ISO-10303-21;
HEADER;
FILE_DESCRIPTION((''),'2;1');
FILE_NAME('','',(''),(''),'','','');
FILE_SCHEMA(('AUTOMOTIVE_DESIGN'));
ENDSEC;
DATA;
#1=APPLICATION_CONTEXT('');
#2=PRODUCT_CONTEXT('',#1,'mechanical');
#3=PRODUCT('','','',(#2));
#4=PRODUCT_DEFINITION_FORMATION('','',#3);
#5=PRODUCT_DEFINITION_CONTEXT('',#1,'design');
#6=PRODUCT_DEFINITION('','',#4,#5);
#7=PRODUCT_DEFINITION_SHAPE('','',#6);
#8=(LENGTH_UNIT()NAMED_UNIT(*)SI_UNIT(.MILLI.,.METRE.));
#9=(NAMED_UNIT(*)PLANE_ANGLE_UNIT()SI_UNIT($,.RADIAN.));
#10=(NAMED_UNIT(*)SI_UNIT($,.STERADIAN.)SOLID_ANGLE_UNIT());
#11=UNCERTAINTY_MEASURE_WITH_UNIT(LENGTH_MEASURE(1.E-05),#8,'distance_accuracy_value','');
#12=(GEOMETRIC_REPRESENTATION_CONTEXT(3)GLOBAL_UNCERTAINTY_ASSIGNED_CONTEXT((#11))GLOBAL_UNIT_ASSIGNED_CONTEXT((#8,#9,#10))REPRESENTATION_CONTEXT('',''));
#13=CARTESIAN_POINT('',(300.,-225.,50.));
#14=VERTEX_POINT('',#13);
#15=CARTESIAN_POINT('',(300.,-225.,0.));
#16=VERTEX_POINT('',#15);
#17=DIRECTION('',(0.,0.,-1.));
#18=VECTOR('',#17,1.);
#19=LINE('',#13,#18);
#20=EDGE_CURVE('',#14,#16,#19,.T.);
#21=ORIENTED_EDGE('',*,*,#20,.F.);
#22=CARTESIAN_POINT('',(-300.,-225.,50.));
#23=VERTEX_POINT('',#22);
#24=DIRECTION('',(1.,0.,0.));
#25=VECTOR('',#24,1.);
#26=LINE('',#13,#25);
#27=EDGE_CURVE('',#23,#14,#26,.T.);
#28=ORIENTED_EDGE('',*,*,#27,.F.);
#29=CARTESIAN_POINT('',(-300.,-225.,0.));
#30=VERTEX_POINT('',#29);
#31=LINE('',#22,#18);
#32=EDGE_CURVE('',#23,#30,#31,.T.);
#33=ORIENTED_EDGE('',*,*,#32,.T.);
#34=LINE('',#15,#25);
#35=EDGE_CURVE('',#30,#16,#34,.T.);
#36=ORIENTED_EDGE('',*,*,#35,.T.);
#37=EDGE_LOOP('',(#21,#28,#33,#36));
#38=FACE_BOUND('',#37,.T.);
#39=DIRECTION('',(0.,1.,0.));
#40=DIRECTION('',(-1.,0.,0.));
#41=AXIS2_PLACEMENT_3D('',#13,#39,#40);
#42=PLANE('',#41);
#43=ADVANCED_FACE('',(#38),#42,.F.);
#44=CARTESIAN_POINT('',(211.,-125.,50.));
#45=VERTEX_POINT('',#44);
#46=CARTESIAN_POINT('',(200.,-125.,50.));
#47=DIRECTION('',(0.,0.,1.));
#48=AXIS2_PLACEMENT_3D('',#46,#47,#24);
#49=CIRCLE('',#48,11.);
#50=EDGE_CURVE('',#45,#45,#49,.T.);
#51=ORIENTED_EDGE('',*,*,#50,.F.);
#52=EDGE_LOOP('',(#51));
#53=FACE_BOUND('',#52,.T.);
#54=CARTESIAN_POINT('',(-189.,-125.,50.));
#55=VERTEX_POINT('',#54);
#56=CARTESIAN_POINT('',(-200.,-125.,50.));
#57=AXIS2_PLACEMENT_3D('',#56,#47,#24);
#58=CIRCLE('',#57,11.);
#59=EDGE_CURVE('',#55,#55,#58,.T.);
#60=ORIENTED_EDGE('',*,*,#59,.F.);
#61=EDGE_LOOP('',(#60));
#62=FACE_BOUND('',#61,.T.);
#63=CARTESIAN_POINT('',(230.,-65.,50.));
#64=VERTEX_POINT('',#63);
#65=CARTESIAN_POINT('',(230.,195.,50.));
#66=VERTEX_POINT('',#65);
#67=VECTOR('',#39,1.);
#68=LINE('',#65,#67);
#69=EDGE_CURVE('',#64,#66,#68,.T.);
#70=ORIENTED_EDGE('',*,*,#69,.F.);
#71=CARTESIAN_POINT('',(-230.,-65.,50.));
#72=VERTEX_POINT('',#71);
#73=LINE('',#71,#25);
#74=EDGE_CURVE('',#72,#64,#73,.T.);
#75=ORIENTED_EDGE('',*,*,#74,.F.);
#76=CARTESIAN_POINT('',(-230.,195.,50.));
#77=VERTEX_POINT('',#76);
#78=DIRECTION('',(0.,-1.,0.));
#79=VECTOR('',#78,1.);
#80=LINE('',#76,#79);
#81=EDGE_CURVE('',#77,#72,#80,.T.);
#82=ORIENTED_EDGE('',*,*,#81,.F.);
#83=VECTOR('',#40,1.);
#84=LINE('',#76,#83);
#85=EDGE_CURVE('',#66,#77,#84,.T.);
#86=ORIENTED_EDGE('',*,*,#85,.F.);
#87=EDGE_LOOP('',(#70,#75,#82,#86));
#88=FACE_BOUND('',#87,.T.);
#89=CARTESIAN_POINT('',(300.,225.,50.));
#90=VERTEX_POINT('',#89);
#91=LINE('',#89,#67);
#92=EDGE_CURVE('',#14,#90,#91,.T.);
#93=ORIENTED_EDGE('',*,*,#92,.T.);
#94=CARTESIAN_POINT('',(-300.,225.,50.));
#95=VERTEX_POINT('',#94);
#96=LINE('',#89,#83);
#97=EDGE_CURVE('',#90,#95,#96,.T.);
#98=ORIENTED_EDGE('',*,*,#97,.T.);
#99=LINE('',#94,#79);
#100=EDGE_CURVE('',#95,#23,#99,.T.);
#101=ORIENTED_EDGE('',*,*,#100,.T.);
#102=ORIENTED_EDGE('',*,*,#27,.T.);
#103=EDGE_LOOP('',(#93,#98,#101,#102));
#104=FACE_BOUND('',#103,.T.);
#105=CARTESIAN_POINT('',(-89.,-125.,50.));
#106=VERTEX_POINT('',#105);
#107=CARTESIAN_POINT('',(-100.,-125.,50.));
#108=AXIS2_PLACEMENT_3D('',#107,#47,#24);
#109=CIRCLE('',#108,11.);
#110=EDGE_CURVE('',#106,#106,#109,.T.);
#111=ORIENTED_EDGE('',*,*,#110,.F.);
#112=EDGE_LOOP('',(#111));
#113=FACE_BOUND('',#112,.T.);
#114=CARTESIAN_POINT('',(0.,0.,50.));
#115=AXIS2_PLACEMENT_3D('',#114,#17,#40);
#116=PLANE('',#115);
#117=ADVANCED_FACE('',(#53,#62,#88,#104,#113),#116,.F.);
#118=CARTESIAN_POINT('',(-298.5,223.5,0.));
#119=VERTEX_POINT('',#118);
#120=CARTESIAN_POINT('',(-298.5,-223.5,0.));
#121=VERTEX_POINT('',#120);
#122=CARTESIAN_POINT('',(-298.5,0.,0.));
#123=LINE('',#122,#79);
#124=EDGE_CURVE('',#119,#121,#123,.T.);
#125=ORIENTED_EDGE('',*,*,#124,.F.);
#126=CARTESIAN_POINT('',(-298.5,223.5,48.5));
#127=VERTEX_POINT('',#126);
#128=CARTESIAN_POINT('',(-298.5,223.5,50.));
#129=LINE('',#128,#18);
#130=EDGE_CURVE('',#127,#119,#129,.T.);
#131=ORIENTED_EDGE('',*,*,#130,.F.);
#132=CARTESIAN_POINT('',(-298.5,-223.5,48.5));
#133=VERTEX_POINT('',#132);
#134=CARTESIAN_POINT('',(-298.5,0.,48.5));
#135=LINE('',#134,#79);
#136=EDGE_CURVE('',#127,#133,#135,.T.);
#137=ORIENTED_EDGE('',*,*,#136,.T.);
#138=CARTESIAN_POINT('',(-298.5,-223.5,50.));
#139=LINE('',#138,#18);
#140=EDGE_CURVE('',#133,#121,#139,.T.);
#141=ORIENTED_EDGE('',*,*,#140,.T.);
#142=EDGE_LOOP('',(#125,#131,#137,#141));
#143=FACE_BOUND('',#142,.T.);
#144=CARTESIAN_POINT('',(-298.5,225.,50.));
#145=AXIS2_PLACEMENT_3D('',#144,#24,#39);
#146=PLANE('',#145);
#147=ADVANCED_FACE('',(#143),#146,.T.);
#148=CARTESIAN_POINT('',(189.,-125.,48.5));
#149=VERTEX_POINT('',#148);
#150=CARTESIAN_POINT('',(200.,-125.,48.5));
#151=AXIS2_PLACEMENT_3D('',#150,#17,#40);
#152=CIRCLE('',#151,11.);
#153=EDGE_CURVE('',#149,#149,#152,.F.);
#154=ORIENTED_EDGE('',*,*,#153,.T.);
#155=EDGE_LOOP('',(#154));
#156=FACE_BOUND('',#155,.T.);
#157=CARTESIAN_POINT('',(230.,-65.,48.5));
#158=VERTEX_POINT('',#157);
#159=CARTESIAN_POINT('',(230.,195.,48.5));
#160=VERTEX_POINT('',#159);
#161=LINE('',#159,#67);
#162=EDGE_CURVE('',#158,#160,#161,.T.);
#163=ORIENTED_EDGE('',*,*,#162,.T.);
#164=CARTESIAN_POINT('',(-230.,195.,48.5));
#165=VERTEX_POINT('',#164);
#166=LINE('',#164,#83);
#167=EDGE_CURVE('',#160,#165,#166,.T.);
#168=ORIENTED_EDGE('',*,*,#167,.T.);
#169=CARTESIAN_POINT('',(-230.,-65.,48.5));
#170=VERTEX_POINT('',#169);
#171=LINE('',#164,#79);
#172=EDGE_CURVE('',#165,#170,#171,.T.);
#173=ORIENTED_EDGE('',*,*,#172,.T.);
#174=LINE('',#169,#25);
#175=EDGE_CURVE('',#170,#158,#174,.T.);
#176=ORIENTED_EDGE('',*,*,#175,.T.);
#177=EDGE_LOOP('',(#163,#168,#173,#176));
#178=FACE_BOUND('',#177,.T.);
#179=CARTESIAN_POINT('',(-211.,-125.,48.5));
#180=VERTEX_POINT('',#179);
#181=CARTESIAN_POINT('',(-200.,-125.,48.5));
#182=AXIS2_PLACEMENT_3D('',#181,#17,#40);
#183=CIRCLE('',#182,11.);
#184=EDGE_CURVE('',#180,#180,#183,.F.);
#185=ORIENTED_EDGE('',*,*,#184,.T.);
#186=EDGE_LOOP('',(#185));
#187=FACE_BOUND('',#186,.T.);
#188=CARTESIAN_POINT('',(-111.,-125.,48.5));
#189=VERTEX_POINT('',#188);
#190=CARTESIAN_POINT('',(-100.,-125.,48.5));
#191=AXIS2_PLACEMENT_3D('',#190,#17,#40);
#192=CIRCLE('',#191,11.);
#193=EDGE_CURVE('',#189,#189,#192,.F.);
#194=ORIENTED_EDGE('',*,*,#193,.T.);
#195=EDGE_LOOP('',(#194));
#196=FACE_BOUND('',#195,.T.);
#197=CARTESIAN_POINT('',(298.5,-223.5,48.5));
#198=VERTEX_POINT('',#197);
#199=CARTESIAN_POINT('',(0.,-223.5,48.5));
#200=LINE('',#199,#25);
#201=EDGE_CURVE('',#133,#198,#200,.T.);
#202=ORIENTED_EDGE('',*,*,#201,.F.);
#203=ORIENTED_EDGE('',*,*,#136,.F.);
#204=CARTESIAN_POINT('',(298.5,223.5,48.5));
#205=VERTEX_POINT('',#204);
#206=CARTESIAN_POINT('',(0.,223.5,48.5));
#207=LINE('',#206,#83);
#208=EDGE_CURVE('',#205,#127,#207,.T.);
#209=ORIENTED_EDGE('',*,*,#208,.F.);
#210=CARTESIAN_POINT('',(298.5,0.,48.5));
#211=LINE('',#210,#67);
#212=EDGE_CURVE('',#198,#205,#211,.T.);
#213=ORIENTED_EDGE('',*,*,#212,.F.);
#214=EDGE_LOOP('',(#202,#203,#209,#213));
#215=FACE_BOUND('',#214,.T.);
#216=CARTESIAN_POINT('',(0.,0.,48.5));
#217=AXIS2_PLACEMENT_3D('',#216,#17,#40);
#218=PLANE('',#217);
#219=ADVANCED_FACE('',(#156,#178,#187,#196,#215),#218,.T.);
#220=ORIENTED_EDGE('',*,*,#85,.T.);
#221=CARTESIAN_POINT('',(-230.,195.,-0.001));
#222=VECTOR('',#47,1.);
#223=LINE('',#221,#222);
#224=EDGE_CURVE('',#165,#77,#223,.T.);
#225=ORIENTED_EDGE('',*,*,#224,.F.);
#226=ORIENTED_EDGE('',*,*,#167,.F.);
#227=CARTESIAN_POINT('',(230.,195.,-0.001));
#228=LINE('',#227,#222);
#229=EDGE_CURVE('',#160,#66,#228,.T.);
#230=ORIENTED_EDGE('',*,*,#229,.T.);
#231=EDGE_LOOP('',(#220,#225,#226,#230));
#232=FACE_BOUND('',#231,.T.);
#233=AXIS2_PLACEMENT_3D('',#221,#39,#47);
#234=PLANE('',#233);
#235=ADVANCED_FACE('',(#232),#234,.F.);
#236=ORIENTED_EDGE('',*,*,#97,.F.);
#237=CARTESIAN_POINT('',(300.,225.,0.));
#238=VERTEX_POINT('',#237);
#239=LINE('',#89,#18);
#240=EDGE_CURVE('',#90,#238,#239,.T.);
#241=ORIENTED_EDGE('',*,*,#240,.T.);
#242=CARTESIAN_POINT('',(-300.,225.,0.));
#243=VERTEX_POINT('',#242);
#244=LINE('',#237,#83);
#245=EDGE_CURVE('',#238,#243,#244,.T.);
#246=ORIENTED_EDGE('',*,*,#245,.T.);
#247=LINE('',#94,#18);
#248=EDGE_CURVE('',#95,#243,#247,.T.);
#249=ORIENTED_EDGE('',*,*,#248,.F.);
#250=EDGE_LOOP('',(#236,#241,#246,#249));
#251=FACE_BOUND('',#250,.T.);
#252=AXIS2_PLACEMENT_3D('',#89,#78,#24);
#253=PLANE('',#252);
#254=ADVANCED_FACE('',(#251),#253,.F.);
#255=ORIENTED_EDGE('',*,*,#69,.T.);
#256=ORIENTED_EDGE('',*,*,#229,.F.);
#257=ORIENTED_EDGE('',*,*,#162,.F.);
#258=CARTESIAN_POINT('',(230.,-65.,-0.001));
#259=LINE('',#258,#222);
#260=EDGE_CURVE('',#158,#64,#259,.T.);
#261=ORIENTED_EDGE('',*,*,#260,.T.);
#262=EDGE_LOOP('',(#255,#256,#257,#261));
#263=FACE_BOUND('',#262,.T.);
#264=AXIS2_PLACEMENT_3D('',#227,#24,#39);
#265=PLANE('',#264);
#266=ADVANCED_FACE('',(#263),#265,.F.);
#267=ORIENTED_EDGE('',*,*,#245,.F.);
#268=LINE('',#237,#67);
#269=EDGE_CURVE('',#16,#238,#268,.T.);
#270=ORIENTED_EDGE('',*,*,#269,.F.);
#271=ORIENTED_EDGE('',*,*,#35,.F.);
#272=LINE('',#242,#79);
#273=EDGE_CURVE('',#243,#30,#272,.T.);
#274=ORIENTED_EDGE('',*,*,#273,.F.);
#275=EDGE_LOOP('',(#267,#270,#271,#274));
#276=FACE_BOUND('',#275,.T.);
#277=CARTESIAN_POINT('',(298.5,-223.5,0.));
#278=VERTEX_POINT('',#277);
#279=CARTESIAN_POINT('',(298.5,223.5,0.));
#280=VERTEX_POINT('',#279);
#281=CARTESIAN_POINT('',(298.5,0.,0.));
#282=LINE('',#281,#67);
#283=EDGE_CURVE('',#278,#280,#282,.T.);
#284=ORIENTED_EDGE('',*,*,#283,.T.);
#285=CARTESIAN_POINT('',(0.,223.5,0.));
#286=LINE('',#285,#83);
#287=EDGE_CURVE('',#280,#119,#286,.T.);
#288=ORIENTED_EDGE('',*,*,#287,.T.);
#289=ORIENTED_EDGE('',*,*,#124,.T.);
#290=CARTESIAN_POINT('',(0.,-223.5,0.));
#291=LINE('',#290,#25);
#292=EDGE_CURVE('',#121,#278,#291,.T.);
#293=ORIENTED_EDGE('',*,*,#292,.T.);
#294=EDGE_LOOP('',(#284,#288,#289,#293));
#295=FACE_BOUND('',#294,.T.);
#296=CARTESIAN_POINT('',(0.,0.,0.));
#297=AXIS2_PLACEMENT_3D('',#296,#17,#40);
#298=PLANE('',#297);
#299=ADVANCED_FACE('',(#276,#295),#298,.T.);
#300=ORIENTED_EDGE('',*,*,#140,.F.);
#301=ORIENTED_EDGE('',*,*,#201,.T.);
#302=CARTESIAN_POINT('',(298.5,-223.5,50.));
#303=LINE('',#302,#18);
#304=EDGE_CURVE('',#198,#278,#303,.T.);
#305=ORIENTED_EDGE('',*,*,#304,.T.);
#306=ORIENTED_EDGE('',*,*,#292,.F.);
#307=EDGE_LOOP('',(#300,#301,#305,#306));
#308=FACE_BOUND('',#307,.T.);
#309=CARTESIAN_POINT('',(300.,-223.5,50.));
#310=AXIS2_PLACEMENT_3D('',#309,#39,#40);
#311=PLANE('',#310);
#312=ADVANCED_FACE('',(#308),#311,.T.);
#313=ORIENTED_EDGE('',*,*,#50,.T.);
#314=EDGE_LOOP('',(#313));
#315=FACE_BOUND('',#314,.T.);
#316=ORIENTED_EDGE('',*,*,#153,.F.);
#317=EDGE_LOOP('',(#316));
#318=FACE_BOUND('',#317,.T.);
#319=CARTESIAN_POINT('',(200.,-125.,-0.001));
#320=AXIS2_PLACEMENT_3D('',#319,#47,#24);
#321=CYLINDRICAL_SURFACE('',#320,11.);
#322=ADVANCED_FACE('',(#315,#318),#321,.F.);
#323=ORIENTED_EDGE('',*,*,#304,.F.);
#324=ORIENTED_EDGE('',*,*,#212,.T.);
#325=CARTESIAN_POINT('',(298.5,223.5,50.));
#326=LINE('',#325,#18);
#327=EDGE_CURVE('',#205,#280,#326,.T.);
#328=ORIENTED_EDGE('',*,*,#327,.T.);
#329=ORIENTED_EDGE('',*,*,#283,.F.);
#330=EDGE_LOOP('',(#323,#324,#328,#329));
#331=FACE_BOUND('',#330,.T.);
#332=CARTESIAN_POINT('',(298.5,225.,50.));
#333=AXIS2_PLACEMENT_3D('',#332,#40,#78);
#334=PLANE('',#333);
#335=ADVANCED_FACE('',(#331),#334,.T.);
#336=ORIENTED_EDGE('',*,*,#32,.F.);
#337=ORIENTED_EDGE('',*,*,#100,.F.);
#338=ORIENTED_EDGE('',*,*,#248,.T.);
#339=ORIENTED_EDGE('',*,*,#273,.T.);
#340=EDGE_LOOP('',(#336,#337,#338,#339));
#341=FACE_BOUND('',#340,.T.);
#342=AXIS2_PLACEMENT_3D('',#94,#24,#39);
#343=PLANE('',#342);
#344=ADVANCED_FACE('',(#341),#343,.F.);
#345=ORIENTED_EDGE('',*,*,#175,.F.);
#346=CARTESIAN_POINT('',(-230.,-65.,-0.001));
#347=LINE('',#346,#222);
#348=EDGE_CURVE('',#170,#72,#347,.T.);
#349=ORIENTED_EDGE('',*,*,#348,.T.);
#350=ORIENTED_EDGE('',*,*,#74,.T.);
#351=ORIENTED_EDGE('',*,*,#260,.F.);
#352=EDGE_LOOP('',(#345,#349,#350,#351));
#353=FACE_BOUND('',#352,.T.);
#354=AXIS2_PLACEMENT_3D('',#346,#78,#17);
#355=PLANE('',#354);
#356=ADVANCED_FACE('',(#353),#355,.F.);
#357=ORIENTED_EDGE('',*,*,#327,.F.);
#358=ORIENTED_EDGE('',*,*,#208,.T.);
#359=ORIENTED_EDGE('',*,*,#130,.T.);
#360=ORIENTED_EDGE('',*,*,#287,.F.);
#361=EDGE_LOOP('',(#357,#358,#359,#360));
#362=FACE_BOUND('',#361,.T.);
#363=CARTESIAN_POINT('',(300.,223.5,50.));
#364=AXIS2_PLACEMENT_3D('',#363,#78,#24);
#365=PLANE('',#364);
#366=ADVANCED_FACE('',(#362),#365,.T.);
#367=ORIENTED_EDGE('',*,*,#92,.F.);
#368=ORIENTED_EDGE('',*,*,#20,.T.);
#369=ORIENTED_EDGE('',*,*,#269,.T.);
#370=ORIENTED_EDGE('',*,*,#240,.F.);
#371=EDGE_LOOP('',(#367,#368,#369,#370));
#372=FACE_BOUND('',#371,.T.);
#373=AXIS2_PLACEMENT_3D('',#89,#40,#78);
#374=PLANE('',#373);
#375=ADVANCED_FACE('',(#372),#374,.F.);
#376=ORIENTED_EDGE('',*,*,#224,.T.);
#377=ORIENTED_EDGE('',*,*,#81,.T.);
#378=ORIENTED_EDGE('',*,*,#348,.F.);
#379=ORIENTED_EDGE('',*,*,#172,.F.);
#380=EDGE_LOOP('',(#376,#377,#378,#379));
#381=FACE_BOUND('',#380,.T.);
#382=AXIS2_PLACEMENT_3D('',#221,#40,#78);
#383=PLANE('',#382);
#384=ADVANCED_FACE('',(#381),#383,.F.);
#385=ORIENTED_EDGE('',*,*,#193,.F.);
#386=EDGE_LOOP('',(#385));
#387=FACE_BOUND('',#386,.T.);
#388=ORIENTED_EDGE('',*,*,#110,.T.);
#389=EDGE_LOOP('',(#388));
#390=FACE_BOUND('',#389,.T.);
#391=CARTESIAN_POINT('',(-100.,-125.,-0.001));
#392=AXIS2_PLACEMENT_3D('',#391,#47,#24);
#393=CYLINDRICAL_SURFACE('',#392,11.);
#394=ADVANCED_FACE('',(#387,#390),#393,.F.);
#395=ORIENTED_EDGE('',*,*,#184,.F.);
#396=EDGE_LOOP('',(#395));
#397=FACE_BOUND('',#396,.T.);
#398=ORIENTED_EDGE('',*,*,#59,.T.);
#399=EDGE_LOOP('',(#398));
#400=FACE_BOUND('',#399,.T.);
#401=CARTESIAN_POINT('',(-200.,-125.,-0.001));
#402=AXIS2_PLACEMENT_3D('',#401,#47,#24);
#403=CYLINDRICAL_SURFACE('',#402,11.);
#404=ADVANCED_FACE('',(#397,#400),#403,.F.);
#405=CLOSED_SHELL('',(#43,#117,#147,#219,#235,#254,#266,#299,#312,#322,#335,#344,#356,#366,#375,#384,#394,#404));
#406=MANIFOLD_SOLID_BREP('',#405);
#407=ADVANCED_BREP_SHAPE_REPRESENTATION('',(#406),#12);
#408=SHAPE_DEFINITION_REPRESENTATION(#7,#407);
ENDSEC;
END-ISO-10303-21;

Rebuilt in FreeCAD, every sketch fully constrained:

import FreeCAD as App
import Part
import Sketcher
from FreeCAD import Vector


def faces_at(feature, points):
    """Names of the faces that lie closest to the given points."""
    faces = feature.Shape.Faces
    near = lambda p: min(range(len(faces)), key=lambda i: faces[i].distToShape(Part.Vertex(*p))[0])
    return sorted({f"Face{near(p) + 1}" for p in points})


def add_polygon(sketch, points):
    """Adds a closed chain of lines whose ends are joined by coincident constraints."""
    first, n = sketch.GeometryCount, len(points)
    for a, b in zip(points, points[1:] + points[:1]):
        sketch.addGeometry(Part.LineSegment(App.Vector(*a, 0), App.Vector(*b, 0)), False)
    for i in range(n):
        sketch.addConstraint(Sketcher.Constraint("Coincident", first + i, 2, first + (i + 1) % n, 1))

doc = App.newDocument("Part")
body = doc.addObject("PartDesign::Body", "Body")

sketch1 = body.newObject("Sketcher::SketchObject", "Sketch")
sketch1.AttachmentSupport = (doc.getObject("XY_Plane"), [""])
sketch1.MapMode = "FlatFace"
add_polygon(sketch1, [(-300, 225), (-300, -225), (300, -225), (300, 225)])
sketch1.addConstraint(Sketcher.Constraint("Vertical", 0))
sketch1.addConstraint(Sketcher.Constraint("Horizontal", 1))
sketch1.addConstraint(Sketcher.Constraint("Vertical", 2))
sketch1.addConstraint(Sketcher.Constraint("Horizontal", 3))
sketch1.addConstraint(Sketcher.Constraint("Symmetric", 0, 2, 2, 2, -1, 1))
sketch1.addConstraint(Sketcher.Constraint("DistanceX", 1, 1, 1, 2, 600.0))
sketch1.addConstraint(Sketcher.Constraint("DistanceY", 0, 2, 0, 1, 450.0))
pad1 = body.newObject("PartDesign::Pad", "Pad")
pad1.Profile = sketch1
pad1.Length = 50
doc.recompute()

thickness = body.newObject("PartDesign::Thickness", "Thickness")
thickness.Base = (pad1, faces_at(pad1, [(0, 0, 0)]))
thickness.Value = 1.5
thickness.Reversed = True
thickness.Join = "Intersection"

sketch2 = body.newObject("Sketcher::SketchObject", "Sketch001")
sketch2.AttachmentSupport = (doc.getObject("XY_Plane"), [""])
sketch2.MapMode = "FlatFace"
sketch2.AttachmentOffset = App.Placement(Vector(0, 0, 50), App.Rotation())
add_polygon(sketch2, [(-230, 195), (-230, -65), (230, -65), (230, 195)])
sketch2.addConstraint(Sketcher.Constraint("Vertical", 0))
sketch2.addConstraint(Sketcher.Constraint("Horizontal", 1))
sketch2.addConstraint(Sketcher.Constraint("Vertical", 2))
sketch2.addConstraint(Sketcher.Constraint("Horizontal", 3))
sketch2.addConstraint(Sketcher.Constraint("DistanceX", 1, 1, 1, 2, 460.0))
sketch2.addConstraint(Sketcher.Constraint("DistanceY", 0, 2, 0, 1, 260.0))
sketch2.addConstraint(Sketcher.Constraint("DistanceX", 0, 2, -1, 1, 230.0))
sketch2.addConstraint(Sketcher.Constraint("DistanceY", 0, 2, -1, 1, 65.0))
pocket1 = body.newObject("PartDesign::Pocket", "Pocket")
pocket1.Profile = sketch2
pocket1.Type = "UpToFirst"

sketch3 = body.newObject("Sketcher::SketchObject", "Sketch002")
sketch3.AttachmentSupport = (doc.getObject("XY_Plane"), [""])
sketch3.MapMode = "FlatFace"
sketch3.AttachmentOffset = App.Placement(Vector(0, 0, 50), App.Rotation())
sketch3.addGeometry(Part.Circle(Vector(-200, -125, 0), Vector(0, 0, 1), 11), False)
sketch3.addConstraint(Sketcher.Constraint("Diameter", 0, 22.0))
sketch3.addConstraint(Sketcher.Constraint("DistanceX", 0, 3, -1, 1, 200.0))
sketch3.addConstraint(Sketcher.Constraint("DistanceY", 0, 3, -1, 1, 125.0))
pocket2 = body.newObject("PartDesign::Pocket", "Pocket001")
pocket2.Profile = sketch3
pocket2.Type = "UpToFirst"

sketch4 = body.newObject("Sketcher::SketchObject", "Sketch003")
sketch4.AttachmentSupport = (doc.getObject("XY_Plane"), [""])
sketch4.MapMode = "FlatFace"
sketch4.AttachmentOffset = App.Placement(Vector(0, 0, 50), App.Rotation())
sketch4.addGeometry(Part.Circle(Vector(200, -125, 0), Vector(0, 0, 1), 11), False)
sketch4.addConstraint(Sketcher.Constraint("Diameter", 0, 22.0))
sketch4.addConstraint(Sketcher.Constraint("DistanceX", -1, 1, 0, 3, 200.0))
sketch4.addConstraint(Sketcher.Constraint("DistanceY", 0, 3, -1, 1, 125.0))
pocket3 = body.newObject("PartDesign::Pocket", "Pocket002")
pocket3.Profile = sketch4
pocket3.Type = "UpToFirst"

sketch5 = body.newObject("Sketcher::SketchObject", "Sketch004")
sketch5.AttachmentSupport = (doc.getObject("XY_Plane"), [""])
sketch5.MapMode = "FlatFace"
sketch5.AttachmentOffset = App.Placement(Vector(0, 0, 50), App.Rotation())
sketch5.addGeometry(Part.Circle(Vector(-100, -125, 0), Vector(0, 0, 1), 11), False)
sketch5.addConstraint(Sketcher.Constraint("Diameter", 0, 22.0))
sketch5.addConstraint(Sketcher.Constraint("DistanceX", 0, 3, -1, 1, 100.0))
sketch5.addConstraint(Sketcher.Constraint("DistanceY", 0, 3, -1, 1, 125.0))
pocket4 = body.newObject("PartDesign::Pocket", "Pocket003")
pocket4.Profile = sketch5
pocket4.Type = "UpToFirst"

doc.recompute()
